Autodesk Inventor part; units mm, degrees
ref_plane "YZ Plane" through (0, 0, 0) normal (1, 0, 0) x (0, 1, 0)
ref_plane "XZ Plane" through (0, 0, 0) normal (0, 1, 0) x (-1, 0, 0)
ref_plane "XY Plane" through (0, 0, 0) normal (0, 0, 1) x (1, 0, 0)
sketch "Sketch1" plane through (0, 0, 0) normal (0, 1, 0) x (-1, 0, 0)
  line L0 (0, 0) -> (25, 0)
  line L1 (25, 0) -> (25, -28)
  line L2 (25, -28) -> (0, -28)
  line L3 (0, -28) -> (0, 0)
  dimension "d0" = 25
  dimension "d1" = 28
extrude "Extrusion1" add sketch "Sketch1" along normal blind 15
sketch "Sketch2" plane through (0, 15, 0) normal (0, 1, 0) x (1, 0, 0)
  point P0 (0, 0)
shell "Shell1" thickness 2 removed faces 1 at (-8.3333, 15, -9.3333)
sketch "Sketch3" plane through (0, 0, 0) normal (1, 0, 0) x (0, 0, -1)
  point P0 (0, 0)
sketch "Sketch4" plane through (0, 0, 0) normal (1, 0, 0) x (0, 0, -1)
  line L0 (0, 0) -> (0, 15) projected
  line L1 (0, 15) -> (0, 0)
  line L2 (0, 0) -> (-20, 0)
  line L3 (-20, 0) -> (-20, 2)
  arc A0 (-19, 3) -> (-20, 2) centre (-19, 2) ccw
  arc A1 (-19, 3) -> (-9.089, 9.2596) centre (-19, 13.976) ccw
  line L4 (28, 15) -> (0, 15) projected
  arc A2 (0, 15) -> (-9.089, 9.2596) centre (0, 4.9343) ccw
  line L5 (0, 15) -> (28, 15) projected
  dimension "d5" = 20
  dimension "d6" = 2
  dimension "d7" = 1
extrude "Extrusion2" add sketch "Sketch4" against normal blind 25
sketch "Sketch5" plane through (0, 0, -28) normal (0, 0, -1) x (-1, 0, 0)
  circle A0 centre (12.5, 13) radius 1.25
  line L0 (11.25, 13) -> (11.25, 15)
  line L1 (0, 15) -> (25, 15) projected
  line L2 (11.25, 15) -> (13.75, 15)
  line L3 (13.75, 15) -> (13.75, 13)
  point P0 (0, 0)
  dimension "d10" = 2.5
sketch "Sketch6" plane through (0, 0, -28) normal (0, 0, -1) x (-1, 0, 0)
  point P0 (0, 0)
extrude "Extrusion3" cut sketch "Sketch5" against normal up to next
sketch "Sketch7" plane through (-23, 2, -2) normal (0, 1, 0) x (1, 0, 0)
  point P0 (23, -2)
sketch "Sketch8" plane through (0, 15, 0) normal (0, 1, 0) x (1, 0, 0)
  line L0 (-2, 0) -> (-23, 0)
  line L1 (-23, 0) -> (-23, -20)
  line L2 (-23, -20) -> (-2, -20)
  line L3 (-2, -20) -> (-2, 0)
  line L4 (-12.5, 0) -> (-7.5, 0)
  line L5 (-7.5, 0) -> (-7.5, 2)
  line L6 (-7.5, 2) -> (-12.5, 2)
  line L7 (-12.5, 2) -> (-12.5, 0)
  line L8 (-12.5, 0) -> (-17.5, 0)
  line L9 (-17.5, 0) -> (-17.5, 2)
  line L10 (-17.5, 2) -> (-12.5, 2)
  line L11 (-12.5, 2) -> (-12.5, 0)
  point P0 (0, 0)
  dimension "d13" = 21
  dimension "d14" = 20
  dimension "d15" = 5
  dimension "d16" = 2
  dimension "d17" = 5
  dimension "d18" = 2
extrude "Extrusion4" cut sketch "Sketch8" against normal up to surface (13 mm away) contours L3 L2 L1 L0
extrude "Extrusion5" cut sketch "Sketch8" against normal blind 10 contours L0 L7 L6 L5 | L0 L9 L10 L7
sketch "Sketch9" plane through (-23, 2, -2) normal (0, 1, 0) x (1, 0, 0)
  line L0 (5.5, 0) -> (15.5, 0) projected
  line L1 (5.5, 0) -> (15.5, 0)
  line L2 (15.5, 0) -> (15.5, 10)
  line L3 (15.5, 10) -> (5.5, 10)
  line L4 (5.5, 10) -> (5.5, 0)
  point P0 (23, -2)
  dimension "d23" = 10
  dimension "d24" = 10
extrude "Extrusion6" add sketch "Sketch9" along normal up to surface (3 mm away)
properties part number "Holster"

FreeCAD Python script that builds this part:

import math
import FreeCAD as App
import Part
import Sketcher
from FreeCAD import Vector
Q = App.Units.Quantity


def faces_at(feature, points):
    """Names of the faces that lie closest to the given points."""
    faces = feature.Shape.Faces
    near = lambda p: min(range(len(faces)), key=lambda i: faces[i].distToShape(Part.Vertex(*p))[0])
    return sorted({f"Face{near(p) + 1}" for p in points})

doc = App.newDocument("Part")
body = doc.addObject("PartDesign::Body", "Body")

# Sketch on XZ plane
sketch1 = body.newObject("Sketcher::SketchObject", "Sketch")
sketch1.AttachmentSupport = (doc.getObject("XZ_Plane"), [""])
sketch1.MapMode = "FlatFace"
sketch1.addGeometry([
    Part.LineSegment(Vector(-25, 0, 0), Vector(0, 0, 0)),
    Part.LineSegment(Vector(0, 0, 0), Vector(0, -28, 0)),
    Part.LineSegment(Vector(0, -28, 0), Vector(-25, -28, 0)),
    Part.LineSegment(Vector(-25, -28, 0), Vector(-25, 0, 0)),
], False)
sketch1.addConstraint([
    Sketcher.Constraint("Coincident", 0, 2, 1, 1),
    Sketcher.Constraint("Coincident", 1, 2, 2, 1),
    Sketcher.Constraint("Coincident", 2, 2, 3, 1),
    Sketcher.Constraint("Coincident", 3, 2, 0, 1),
    Sketcher.Constraint("Horizontal", 0),
    Sketcher.Constraint("Vertical", 1),
    Sketcher.Constraint("Horizontal", 2),
    Sketcher.Constraint("Vertical", 3),
    Sketcher.Constraint("Coincident", 0, 2, -1, 1),
    Sketcher.Constraint("DistanceX", 0, 1, 0, 2, Q("25 mm")),
    Sketcher.Constraint("DistanceY", 1, 2, 1, 1, Q("28 mm")),
])
pad1 = body.newObject("PartDesign::Pad", "Pad")
pad1.Profile = sketch1
pad1.Length = 15
pad1.Reversed = True
doc.recompute()

thickness = body.newObject("PartDesign::Thickness", "Thickness")
thickness.Base = (pad1, faces_at(pad1, [(-8.333, 15, -9.333)]))
thickness.Value = 2
thickness.Reversed = True
thickness.Join = "Intersection"

# Sketch on YZ plane
sketch2 = body.newObject("Sketcher::SketchObject", "Sketch001")
sketch2.AttachmentSupport = (doc.getObject("YZ_Plane"), [""])
sketch2.MapMode = "FlatFace"
sketch2.addGeometry([
    Part.LineSegment(Vector(0, 20, 0), Vector(0, 0, 0)),  # 0
    Part.LineSegment(Vector(0, 0, 0), Vector(15, 0, 0)),  # 1
    Part.ArcOfCircle(Part.Circle(Vector(4.9343, 0, 0), Vector(0, 0, 1), 10.0657), math.radians(0), math.radians(64.55102)),  # 2
    Part.ArcOfCircle(Part.Circle(Vector(13.976, 19, 0), Vector(0, 0, 1), 10.976), math.radians(180), math.radians(244.551378)),  # 3
    Part.ArcOfCircle(Part.Circle(Vector(2, 19, 0), Vector(0, 0, 1), 1), math.radians(0), math.radians(90)),  # 4
    Part.LineSegment(Vector(2, 20, 0), Vector(0, 20, 0)),  # 5
], False)
sketch2.addConstraint([
    Sketcher.Constraint("Coincident", 0, 2, 1, 1),
    Sketcher.Constraint("Coincident", 1, 2, 2, 1),
    Sketcher.Constraint("Tangent", 2, 2, 3, 2),
    Sketcher.Constraint("Tangent", 3, 1, 4, 1),
    Sketcher.Constraint("Tangent", 4, 2, 5, 1),
    Sketcher.Constraint("Coincident", 5, 2, 0, 1),
    Sketcher.Constraint("Vertical", 0),
    Sketcher.Constraint("Horizontal", 1),
    Sketcher.Constraint("Horizontal", 5),
    Sketcher.Constraint("Coincident", 0, 2, -1, 1),
    Sketcher.Constraint("PointOnObject", 2, 3, -1),
    Sketcher.Constraint("Horizontal", 3, 3, 4, 3),
    Sketcher.Constraint("Radius", 4, Q("1 mm")),
    Sketcher.Constraint("DistanceX", 5, 2, 5, 1, Q("2 mm")),
    Sketcher.Constraint("DistanceY", 0, 2, 0, 1, Q("20 mm")),
    Sketcher.Constraint("DistanceX", 1, 1, 1, 2, Q("15 mm")),
    Sketcher.Constraint("Radius", 3, Q("10.976 mm")),
])
pad2 = body.newObject("PartDesign::Pad", "Pad001")
pad2.Profile = sketch2
pad2.Length = 25
pad2.Reversed = True

# Sketch on XY plane
sketch3 = body.newObject("Sketcher::SketchObject", "Sketch002")
sketch3.AttachmentSupport = (doc.getObject("XY_Plane"), [""])
sketch3.MapMode = "FlatFace"
sketch3.AttachmentOffset = App.Placement(Vector(0, 0, -28), App.Rotation())
sketch3.addGeometry([
    Part.ArcOfCircle(Part.Circle(Vector(-12.5, 13, 0), Vector(0, 0, 1), 1.25), math.radians(180), math.radians(360)),
    Part.LineSegment(Vector(-13.75, 13, 0), Vector(-13.75, 15, 0)),
    Part.LineSegment(Vector(-13.75, 15, 0), Vector(-11.25, 15, 0)),
    Part.LineSegment(Vector(-11.25, 15, 0), Vector(-11.25, 13, 0)),
], False)
sketch3.addConstraint([
    Sketcher.Constraint("Tangent", 0, 1, 1, 1),
    Sketcher.Constraint("Coincident", 1, 2, 2, 1),
    Sketcher.Constraint("Coincident", 2, 2, 3, 1),
    Sketcher.Constraint("Tangent", 3, 2, 0, 2),
    Sketcher.Constraint("Vertical", 1),
    Sketcher.Constraint("Horizontal", 2),
    Sketcher.Constraint("Vertical", 3),
    Sketcher.Constraint("Radius", 0, Q("1.25 mm")),
    Sketcher.Constraint("DistanceY", 1, 1, 1, 2, Q("2 mm")),
    Sketcher.Constraint("DistanceY", -1, 1, 0, 3, Q("13 mm")),
    Sketcher.Constraint("DistanceX", 0, 3, -1, 1, Q("12.5 mm")),
])
pocket1 = body.newObject("PartDesign::Pocket", "Pocket")
pocket1.Profile = sketch3
pocket1.Type = "UpToFirst"
pocket1.Reversed = True

# Sketch on XZ plane
sketch4 = body.newObject("Sketcher::SketchObject", "Sketch003")
sketch4.AttachmentSupport = (doc.getObject("XZ_Plane"), [""])
sketch4.MapMode = "FlatFace"
sketch4.AttachmentOffset = App.Placement(Vector(0, 0, -15), App.Rotation())
sketch4.addGeometry([
    Part.LineSegment(Vector(-2, 20, 0), Vector(-2, 0, 0)),
    Part.LineSegment(Vector(-2, 0, 0), Vector(-23, 0, 0)),
    Part.LineSegment(Vector(-23, 0, 0), Vector(-23, 20, 0)),
    Part.LineSegment(Vector(-23, 20, 0), Vector(-2, 20, 0)),
], False)
sketch4.addConstraint([
    Sketcher.Constraint("Coincident", 0, 2, 1, 1),
    Sketcher.Constraint("Coincident", 1, 2, 2, 1),
    Sketcher.Constraint("Coincident", 2, 2, 3, 1),
    Sketcher.Constraint("Coincident", 3, 2, 0, 1),
    Sketcher.Constraint("Vertical", 0),
    Sketcher.Constraint("Horizontal", 1),
    Sketcher.Constraint("Vertical", 2),
    Sketcher.Constraint("Horizontal", 3),
    Sketcher.Constraint("PointOnObject", 0, 2, -1),
    Sketcher.Constraint("DistanceX", 1, 2, 1, 1, Q("21 mm")),
    Sketcher.Constraint("DistanceY", 0, 2, 0, 1, Q("20 mm")),
    Sketcher.Constraint("DistanceX", 0, 2, -1, 1, Q("2 mm")),
])
pocket2 = body.newObject("PartDesign::Pocket", "Pocket001")
pocket2.Profile = sketch4
pocket2.Length = 13
pocket2.Reversed = True

# Sketch on XZ plane
sketch5 = body.newObject("Sketcher::SketchObject", "Sketch004")
sketch5.AttachmentSupport = (doc.getObject("XZ_Plane"), [""])
sketch5.MapMode = "FlatFace"
sketch5.AttachmentOffset = App.Placement(Vector(0, 0, -15), App.Rotation())
sketch5.addGeometry([
    Part.LineSegment(Vector(-7.5, 0, 0), Vector(-7.5, -2, 0)),
    Part.LineSegment(Vector(-7.5, -2, 0), Vector(-17.5, -2, 0)),
    Part.LineSegment(Vector(-17.5, -2, 0), Vector(-17.5, 0, 0)),
    Part.LineSegment(Vector(-17.5, 0, 0), Vector(-7.5, 0, 0)),
], False)
sketch5.addConstraint([
    Sketcher.Constraint("Coincident", 0, 2, 1, 1),
    Sketcher.Constraint("Coincident", 1, 2, 2, 1),
    Sketcher.Constraint("Coincident", 2, 2, 3, 1),
    Sketcher.Constraint("Coincident", 3, 2, 0, 1),
    Sketcher.Constraint("Vertical", 0),
    Sketcher.Constraint("Horizontal", 1),
    Sketcher.Constraint("Vertical", 2),
    Sketcher.Constraint("Horizontal", 3),
    Sketcher.Constraint("PointOnObject", 2, 2, -1),
    Sketcher.Constraint("DistanceY", 0, 2, 0, 1, Q("2 mm")),
    Sketcher.Constraint("DistanceX", 1, 2, 1, 1, Q("10 mm")),
    Sketcher.Constraint("DistanceX", 0, 2, -1, 1, Q("7.5 mm")),
])
pocket3 = body.newObject("PartDesign::Pocket", "Pocket002")
pocket3.Profile = sketch5
pocket3.Length = 10
pocket3.Reversed = True

# Sketch on XZ plane
sketch6 = body.newObject("Sketcher::SketchObject", "Sketch005")
sketch6.AttachmentSupport = (doc.getObject("XZ_Plane"), [""])
sketch6.MapMode = "FlatFace"
sketch6.AttachmentOffset = App.Placement(Vector(0, 0, -2), App.Rotation())
sketch6.addGeometry([
    Part.LineSegment(Vector(-17.5, -12, 0), Vector(-17.5, -2, 0)),
    Part.LineSegment(Vector(-17.5, -2, 0), Vector(-7.5, -2, 0)),
    Part.LineSegment(Vector(-7.5, -2, 0), Vector(-7.5, -12, 0)),
    Part.LineSegment(Vector(-7.5, -12, 0), Vector(-17.5, -12, 0)),
], False)
sketch6.addConstraint([
    Sketcher.Constraint("Coincident", 0, 2, 1, 1),
    Sketcher.Constraint("Coincident", 1, 2, 2, 1),
    Sketcher.Constraint("Coincident", 2, 2, 3, 1),
    Sketcher.Constraint("Coincident", 3, 2, 0, 1),
    Sketcher.Constraint("Vertical", 0),
    Sketcher.Constraint("Horizontal", 1),
    Sketcher.Constraint("Vertical", 2),
    Sketcher.Constraint("Horizontal", 3),
    Sketcher.Constraint("Equal", 3, 0),
    Sketcher.Constraint("DistanceX", 1, 1, 1, 2, Q("10 mm")),
    Sketcher.Constraint("DistanceY", 0, 2, -1, 1, Q("2 mm")),
    Sketcher.Constraint("DistanceX", 0, 2, -1, 1, Q("17.5 mm")),
])
pad3 = body.newObject("PartDesign::Pad", "Pad002")
pad3.Profile = sketch6
pad3.Length = 3
pad3.Reversed = True

doc.recompute()
